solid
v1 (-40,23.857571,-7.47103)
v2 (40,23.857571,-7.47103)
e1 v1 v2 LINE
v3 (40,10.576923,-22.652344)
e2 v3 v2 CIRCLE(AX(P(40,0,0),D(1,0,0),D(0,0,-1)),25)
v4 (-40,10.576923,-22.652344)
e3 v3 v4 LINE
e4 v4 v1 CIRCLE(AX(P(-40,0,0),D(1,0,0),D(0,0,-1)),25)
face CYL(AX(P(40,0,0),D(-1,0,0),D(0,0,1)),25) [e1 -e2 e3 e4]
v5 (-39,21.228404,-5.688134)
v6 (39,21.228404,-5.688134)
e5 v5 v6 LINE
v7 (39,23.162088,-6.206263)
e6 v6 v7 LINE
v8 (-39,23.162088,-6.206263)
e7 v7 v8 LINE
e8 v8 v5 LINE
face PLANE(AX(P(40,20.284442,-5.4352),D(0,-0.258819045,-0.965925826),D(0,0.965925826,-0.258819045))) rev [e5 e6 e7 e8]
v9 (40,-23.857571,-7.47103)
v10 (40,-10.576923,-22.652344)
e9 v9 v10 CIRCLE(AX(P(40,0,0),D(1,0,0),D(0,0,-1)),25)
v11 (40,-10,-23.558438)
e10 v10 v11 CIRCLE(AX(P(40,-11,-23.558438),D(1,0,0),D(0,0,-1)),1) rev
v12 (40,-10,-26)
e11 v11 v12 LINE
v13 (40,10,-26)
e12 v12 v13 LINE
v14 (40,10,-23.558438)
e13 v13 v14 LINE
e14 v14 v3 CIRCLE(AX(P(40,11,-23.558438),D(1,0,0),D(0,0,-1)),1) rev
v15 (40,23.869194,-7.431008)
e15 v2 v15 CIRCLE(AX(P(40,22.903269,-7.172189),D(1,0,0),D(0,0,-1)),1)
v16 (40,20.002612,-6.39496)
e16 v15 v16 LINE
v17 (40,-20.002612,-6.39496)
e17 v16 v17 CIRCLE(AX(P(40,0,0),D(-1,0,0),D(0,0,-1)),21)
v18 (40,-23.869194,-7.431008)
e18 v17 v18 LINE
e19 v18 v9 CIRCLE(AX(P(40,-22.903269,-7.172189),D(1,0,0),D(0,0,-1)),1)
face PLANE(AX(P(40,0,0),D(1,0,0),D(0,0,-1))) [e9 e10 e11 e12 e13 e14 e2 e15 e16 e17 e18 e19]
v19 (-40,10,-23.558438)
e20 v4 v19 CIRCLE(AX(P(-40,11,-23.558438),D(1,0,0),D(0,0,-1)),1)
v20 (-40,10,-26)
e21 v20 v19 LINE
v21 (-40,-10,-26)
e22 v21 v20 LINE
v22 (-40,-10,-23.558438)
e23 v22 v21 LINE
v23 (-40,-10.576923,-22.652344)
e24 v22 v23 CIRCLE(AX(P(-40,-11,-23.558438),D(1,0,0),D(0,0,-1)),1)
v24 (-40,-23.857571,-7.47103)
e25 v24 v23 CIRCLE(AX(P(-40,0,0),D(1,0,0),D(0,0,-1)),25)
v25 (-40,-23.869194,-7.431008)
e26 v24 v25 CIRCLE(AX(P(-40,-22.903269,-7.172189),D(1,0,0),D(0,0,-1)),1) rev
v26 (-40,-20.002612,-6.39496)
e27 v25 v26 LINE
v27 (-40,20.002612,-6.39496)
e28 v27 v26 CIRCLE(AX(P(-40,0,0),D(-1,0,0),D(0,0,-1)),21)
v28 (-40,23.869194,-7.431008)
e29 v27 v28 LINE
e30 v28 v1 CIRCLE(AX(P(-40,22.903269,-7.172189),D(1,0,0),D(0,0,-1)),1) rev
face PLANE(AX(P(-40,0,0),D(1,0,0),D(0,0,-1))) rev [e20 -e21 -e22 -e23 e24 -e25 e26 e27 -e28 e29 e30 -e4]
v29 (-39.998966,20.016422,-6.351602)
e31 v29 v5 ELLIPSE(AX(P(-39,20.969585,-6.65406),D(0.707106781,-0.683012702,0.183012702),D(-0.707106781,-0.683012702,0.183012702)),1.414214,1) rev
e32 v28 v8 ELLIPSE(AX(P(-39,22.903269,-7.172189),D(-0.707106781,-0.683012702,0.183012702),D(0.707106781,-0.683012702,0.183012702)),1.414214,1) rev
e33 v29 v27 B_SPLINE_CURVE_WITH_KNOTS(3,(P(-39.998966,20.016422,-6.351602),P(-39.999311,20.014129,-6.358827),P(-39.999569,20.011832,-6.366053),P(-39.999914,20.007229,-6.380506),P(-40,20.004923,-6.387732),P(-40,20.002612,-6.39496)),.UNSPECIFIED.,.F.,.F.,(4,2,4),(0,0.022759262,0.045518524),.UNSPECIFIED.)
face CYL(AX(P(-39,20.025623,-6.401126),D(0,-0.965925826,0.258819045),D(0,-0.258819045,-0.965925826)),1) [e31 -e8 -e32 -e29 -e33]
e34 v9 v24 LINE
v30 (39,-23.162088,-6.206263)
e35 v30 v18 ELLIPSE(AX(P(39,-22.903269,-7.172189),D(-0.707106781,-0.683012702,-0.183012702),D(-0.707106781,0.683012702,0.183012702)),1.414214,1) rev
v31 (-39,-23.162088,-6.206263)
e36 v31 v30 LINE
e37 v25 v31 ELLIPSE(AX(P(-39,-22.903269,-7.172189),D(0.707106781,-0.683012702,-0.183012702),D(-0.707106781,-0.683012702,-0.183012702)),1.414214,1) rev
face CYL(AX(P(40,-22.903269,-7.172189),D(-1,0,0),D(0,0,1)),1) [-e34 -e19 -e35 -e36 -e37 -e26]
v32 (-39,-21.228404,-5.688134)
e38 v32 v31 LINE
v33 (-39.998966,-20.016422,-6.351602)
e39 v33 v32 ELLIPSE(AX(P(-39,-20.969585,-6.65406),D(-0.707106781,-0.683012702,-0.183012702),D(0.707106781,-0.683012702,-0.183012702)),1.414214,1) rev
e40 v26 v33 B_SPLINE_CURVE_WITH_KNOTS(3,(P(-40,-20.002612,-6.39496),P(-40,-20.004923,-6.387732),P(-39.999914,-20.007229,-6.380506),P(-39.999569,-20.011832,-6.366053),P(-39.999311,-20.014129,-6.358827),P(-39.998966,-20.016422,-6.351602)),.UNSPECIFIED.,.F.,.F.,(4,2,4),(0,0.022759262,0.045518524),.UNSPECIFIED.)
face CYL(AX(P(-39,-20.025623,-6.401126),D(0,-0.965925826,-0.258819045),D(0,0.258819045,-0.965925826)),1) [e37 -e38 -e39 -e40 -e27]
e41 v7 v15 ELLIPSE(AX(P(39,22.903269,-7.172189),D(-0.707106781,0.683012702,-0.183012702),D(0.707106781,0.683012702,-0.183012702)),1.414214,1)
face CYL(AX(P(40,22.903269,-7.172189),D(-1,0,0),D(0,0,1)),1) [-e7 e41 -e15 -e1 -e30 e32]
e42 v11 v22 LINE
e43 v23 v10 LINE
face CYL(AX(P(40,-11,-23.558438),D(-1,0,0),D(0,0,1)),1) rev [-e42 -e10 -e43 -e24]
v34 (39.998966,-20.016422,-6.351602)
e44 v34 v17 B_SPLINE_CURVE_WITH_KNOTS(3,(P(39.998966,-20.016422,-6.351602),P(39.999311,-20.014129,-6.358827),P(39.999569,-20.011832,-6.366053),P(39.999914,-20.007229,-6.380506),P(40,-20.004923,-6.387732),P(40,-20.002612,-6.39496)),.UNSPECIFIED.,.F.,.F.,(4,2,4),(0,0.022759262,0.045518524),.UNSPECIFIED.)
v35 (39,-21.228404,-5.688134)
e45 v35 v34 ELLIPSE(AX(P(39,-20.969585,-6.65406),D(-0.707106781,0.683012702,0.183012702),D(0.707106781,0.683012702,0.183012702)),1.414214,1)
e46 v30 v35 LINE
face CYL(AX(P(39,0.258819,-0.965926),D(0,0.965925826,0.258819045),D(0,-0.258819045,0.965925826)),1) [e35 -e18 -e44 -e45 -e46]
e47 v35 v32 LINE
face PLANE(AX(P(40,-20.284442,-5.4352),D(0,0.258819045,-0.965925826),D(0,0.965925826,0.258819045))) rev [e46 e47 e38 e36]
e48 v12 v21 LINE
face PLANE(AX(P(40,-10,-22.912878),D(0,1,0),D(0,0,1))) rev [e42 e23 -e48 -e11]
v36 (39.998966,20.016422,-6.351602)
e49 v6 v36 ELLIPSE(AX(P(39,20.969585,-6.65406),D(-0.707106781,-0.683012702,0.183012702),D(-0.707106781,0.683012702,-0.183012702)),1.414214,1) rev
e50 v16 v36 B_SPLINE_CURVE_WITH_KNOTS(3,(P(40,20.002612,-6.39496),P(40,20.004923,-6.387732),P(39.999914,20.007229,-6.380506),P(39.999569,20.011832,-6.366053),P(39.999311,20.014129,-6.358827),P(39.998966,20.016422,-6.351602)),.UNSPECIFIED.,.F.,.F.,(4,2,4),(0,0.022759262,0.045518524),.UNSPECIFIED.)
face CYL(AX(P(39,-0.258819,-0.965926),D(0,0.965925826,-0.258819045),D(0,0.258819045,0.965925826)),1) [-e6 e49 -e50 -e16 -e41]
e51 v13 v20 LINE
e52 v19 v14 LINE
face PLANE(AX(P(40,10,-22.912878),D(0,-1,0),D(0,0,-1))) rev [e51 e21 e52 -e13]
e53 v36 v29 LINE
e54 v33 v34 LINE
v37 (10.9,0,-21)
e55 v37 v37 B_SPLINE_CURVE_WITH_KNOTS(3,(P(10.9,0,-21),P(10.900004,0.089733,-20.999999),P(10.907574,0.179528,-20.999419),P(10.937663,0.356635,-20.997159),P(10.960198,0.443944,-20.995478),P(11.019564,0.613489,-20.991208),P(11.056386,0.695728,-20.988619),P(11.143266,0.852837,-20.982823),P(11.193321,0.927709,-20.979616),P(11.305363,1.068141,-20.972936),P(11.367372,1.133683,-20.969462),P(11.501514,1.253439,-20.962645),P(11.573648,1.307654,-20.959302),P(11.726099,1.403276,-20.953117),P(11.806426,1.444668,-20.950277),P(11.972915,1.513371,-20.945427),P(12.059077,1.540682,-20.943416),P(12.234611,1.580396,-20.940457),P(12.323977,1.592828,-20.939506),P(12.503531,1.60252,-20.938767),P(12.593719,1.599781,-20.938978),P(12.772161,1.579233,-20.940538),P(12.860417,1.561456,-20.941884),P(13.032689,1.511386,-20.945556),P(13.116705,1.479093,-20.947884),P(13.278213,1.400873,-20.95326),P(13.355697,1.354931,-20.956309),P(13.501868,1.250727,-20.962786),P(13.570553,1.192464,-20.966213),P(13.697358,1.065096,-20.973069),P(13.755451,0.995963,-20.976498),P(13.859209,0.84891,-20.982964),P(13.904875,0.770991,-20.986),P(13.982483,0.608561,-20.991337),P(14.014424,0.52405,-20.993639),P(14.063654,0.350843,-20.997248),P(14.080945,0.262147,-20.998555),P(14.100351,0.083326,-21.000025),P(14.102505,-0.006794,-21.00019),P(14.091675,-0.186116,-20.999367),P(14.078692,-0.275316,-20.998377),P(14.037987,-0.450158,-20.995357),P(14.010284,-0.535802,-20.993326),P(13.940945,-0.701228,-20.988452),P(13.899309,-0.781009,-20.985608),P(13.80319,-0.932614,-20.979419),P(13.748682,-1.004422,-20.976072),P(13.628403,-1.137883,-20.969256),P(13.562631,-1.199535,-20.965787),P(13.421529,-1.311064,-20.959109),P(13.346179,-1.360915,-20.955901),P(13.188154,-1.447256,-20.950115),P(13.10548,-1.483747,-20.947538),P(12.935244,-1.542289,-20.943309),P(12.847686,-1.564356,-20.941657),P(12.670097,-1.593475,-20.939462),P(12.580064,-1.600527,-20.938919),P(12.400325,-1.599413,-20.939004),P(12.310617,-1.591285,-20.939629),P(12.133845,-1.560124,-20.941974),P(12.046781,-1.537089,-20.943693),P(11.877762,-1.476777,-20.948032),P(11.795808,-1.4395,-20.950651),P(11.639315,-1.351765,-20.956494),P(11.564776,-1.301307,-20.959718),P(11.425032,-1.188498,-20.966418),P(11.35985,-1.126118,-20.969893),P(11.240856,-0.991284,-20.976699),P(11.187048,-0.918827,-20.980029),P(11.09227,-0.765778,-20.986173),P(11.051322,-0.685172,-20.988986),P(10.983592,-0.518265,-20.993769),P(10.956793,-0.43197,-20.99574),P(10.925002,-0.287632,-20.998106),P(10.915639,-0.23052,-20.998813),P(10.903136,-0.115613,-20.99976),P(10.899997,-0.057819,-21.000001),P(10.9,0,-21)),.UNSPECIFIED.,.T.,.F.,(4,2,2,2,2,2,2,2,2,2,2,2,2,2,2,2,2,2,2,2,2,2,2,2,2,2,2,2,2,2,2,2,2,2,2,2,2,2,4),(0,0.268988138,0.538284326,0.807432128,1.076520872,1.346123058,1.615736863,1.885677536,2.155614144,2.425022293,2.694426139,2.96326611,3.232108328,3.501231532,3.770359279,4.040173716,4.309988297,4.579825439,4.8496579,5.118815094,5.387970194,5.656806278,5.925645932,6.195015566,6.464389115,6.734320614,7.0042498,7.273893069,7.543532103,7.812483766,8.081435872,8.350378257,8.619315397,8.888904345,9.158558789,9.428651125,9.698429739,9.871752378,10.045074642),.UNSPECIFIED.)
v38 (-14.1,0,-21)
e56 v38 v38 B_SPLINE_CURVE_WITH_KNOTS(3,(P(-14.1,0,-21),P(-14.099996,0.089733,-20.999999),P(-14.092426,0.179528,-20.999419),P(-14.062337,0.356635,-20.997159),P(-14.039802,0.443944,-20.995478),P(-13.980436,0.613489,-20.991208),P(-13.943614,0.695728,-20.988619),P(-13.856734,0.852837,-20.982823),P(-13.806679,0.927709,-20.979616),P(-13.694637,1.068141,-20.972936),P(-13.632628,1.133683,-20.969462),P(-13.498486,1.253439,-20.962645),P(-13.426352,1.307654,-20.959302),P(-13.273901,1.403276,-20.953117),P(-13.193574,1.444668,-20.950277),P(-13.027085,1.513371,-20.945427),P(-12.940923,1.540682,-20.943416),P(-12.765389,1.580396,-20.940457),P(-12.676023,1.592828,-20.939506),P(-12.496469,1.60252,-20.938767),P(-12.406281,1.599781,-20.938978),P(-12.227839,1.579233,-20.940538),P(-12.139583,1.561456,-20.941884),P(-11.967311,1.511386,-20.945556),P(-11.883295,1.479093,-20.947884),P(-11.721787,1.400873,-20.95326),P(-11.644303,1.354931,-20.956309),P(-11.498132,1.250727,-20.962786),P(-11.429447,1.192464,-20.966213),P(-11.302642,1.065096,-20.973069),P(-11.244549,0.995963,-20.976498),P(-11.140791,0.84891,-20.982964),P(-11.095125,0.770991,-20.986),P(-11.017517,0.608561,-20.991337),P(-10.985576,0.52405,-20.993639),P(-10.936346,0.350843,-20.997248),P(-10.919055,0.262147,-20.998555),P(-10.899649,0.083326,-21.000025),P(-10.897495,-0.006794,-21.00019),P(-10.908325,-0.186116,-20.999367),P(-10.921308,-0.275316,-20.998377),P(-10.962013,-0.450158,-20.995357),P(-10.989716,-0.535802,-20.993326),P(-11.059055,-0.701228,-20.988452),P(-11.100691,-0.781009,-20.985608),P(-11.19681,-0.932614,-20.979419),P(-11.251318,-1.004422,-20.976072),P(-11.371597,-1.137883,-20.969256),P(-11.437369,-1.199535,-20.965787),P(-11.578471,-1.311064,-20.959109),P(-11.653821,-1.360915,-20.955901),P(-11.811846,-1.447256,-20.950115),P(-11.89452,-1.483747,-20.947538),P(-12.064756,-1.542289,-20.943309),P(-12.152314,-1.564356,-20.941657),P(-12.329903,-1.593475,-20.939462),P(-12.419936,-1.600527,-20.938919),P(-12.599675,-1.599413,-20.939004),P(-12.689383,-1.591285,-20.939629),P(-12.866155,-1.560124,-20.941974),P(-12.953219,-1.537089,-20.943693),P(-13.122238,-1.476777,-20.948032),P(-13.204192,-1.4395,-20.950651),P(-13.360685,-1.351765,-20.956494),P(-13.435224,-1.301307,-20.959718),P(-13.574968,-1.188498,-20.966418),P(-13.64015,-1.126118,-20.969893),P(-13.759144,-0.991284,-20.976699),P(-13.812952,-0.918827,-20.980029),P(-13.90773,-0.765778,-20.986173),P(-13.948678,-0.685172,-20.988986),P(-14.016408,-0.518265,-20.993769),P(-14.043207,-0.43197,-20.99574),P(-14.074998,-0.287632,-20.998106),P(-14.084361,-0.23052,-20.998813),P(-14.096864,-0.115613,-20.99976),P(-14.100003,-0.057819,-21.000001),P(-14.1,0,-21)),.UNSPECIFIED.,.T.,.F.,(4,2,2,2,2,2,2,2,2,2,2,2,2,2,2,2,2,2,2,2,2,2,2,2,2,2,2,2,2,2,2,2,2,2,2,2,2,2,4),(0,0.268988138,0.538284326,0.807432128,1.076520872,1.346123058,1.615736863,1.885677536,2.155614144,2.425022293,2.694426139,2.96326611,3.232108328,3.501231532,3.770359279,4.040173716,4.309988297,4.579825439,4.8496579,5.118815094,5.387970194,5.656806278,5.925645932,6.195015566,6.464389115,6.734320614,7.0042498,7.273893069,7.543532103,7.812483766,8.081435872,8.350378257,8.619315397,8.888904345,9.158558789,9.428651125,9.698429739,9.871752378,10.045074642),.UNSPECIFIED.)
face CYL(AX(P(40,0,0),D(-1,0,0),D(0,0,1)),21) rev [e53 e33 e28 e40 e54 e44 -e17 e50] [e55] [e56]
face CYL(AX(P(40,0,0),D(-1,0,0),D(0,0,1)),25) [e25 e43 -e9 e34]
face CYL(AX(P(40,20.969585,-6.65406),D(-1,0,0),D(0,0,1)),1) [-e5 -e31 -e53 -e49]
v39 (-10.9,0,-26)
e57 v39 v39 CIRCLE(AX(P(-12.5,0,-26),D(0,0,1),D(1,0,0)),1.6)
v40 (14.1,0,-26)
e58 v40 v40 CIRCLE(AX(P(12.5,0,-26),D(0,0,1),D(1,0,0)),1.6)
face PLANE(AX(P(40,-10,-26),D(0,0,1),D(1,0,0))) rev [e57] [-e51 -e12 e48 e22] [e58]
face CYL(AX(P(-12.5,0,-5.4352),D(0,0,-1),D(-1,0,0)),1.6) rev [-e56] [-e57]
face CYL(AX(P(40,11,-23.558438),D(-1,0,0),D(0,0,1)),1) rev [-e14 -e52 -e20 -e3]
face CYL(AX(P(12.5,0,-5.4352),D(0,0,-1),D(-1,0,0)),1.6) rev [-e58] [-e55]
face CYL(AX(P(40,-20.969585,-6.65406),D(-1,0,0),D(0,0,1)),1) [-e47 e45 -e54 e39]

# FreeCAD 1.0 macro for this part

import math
import FreeCAD as App
import Part
import Sketcher

V = App.Vector
Q = App.Units.Quantity


def edges_at(feature, points):
    """Names of the edges that pass closest to the given points."""
    edges = feature.Shape.Edges
    near = lambda p: min(range(len(edges)), key=lambda i: edges[i].distToShape(Part.Vertex(*p))[0])
    return sorted({f"Edge{near(p) + 1}" for p in points})

doc = App.newDocument("Part")
body = doc.addObject("PartDesign::Body", "Body")

# Sketch on YZ plane
sketch1 = doc.addObject("Sketcher::SketchObject", "Sketch")
body.addObject(sketch1)
sketch1.AttachmentSupport = (doc.YZ_Plane, [""])
sketch1.MapMode = "FlatFace"
sketch1.addGeometry([
    Part.LineSegment(V(24.148146, -6.470476, 0), V(20.284442, -5.4352, 0)),  # 0
    Part.ArcOfCircle(Part.Circle(V(0, 0, 0), V(0, 0, 1), 21), math.radians(-165), math.radians(-15)),  # 1
    Part.LineSegment(V(-20.284442, -5.4352, 0), V(-24.148146, -6.470476, 0)),  # 2
    Part.ArcOfCircle(Part.Circle(V(0, 0, 0), V(0, 0, 1), 25), math.radians(-165), math.radians(-113.578178)),  # 3
    Part.LineSegment(V(-10, -22.912878, 0), V(-10, -26, 0)),  # 4
    Part.LineSegment(V(-10, -26, 0), V(10, -26, 0)),  # 5
    Part.LineSegment(V(10, -26, 0), V(10, -22.912878, 0)),  # 6
    Part.ArcOfCircle(Part.Circle(V(0, 0, 0), V(0, 0, 1), 25), math.radians(-66.421822), math.radians(-15)),  # 7
], False)
sketch1.addConstraint([
    Sketcher.Constraint("Coincident", 0, 2, 1, 2),
    Sketcher.Constraint("Coincident", 1, 1, 2, 1),
    Sketcher.Constraint("Coincident", 2, 2, 3, 1),
    Sketcher.Constraint("Coincident", 3, 2, 4, 1),
    Sketcher.Constraint("Coincident", 4, 2, 5, 1),
    Sketcher.Constraint("Coincident", 5, 2, 6, 1),
    Sketcher.Constraint("Coincident", 6, 2, 7, 1),
    Sketcher.Constraint("Coincident", 7, 2, 0, 1),
    Sketcher.Constraint("Vertical", 4),
    Sketcher.Constraint("Horizontal", 5),
    Sketcher.Constraint("Vertical", 6),
    Sketcher.Constraint("Coincident", 1, 3, -1, 1),
    Sketcher.Constraint("Coincident", 3, 3, -1, 1),
    Sketcher.Constraint("Coincident", 7, 3, -1, 1),
    Sketcher.Constraint("Equal", 3, 7),
    Sketcher.Constraint("Horizontal", 0, 2, 1, 1),
    Sketcher.Constraint("Horizontal", 3, 2, 6, 2),
    Sketcher.Constraint("Horizontal", 2, 2, 7, 2),
    Sketcher.Constraint("Radius", 1, Q("21 mm")),
    Sketcher.Constraint("Radius", 3, Q("25 mm")),
    Sketcher.Constraint("DistanceX", 5, 1, 5, 2, Q("20 mm")),
    Sketcher.Constraint("Angle", 0, Q("165 deg")),
    Sketcher.Constraint("DistanceY", 4, 2, -1, 1, Q("26 mm")),
    Sketcher.Constraint("DistanceY", 0, 2, -1, 1, Q("5.4352 mm")),
])
pad1 = doc.addObject("PartDesign::Pad", "Pad")
body.addObject(pad1)
pad1.Profile = sketch1
pad1.Length = 80
pad1.Midplane = True

# Sketch on XY plane
sketch2 = doc.addObject("Sketcher::SketchObject", "Sketch001")
body.addObject(sketch2)
sketch2.AttachmentSupport = (doc.XY_Plane, [""])
sketch2.MapMode = "FlatFace"
sketch2.AttachmentOffset = App.Placement(V(0, 0, -26), App.Rotation())
sketch2.addGeometry([
    Part.Circle(V(-12.5, 0, 0), V(0, 0, 1), 1.6),
    Part.Circle(V(12.5, 0, 0), V(0, 0, 1), 1.6),
], False)
sketch2.addConstraint([
    Sketcher.Constraint("Equal", 0, 1),
    Sketcher.Constraint("Symmetric", 0, 3, 1, 3, -1, 1),
    Sketcher.Constraint("PointOnObject", 0, 3, -1),
    Sketcher.Constraint("Diameter", 0, Q("3.2 mm")),
    Sketcher.Constraint("DistanceX", 0, 3, 1, 3, Q("25 mm")),
])
pocket1 = doc.addObject("PartDesign::Pocket", "Pocket")
body.addObject(pocket1)
pocket1.Profile = sketch2
pocket1.Type = "ThroughAll"
pocket1.Midplane = True
doc.recompute()

fillet = doc.addObject("PartDesign::Fillet", "Fillet")
body.addObject(fillet)
fillet.Base = (pocket1, edges_at(pocket1, [
    (-40, -22.216, -5.953),
    (0, 20.284, -5.435),
    (0, 24.148, -6.47),
    (0, 10, -22.913),
    (0, -10, -22.913),
    (0, -24.148, -6.47),
    (0, -20.284, -5.435),
    (40, 22.216, -5.953),
    (-40, 22.216, -5.953),
    (40, -22.216, -5.953),
]))
fillet.Radius = 1

doc.recompute()
